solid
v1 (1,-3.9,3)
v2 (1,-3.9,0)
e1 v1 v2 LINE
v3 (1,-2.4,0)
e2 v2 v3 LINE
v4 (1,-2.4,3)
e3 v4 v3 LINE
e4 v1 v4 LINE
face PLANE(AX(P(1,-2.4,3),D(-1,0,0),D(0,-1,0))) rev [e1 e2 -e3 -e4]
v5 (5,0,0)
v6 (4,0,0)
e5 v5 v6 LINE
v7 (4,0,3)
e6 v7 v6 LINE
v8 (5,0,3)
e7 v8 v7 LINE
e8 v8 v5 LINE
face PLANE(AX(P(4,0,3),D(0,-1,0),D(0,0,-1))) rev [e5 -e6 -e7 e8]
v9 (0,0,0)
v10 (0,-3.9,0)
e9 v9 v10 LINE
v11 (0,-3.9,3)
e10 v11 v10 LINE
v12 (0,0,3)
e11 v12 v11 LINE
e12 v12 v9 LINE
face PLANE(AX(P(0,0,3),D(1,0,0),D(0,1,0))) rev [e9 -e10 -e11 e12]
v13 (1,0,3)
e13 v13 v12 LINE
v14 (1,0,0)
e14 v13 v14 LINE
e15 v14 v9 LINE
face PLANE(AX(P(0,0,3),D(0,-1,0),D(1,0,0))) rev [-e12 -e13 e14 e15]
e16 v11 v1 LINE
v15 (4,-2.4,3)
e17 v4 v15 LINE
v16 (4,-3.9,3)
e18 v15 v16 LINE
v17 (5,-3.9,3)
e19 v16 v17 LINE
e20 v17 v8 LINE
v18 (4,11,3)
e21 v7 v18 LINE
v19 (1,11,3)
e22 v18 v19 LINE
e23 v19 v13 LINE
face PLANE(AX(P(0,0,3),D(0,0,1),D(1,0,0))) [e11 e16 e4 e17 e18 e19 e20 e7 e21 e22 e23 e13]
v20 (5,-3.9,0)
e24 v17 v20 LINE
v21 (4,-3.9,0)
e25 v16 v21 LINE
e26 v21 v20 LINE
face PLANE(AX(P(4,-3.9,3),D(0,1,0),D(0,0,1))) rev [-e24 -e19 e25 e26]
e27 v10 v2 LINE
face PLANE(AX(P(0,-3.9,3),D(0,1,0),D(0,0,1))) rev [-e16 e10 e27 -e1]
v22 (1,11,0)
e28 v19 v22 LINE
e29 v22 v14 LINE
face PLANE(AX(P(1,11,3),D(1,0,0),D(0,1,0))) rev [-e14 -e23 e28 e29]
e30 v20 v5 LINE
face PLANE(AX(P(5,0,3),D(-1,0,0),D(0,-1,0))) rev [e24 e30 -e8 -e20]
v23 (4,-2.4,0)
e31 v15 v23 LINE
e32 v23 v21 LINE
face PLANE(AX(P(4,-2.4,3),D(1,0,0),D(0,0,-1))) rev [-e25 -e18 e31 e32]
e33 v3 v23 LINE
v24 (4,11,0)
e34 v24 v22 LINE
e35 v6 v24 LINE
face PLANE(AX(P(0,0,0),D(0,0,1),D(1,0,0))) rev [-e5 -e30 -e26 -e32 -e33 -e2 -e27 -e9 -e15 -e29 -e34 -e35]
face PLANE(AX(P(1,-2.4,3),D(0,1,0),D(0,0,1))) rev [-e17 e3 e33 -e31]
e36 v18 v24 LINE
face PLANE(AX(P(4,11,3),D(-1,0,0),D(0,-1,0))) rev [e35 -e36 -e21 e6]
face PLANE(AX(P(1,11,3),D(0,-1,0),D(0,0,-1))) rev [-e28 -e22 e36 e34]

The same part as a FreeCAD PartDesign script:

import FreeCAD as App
import Part
import Sketcher

V = App.Vector


def add_polygon(sketch, points):
    """Adds a closed chain of lines whose ends are joined by coincident constraints."""
    first, n = sketch.GeometryCount, len(points)
    for a, b in zip(points, points[1:] + points[:1]):
        sketch.addGeometry(Part.LineSegment(App.Vector(*a, 0), App.Vector(*b, 0)), False)
    for i in range(n):
        sketch.addConstraint(Sketcher.Constraint("Coincident", first + i, 2, first + (i + 1) % n, 1))

doc = App.newDocument("Part")
body = doc.addObject("PartDesign::Body", "Body")

sketch1 = body.newObject("Sketcher::SketchObject", "Sketch")
sketch1.AttachmentSupport = (doc.getObject("XY_Plane"), [""])
sketch1.MapMode = "FlatFace"
add_polygon(sketch1, [(4, -3.9), (5, -3.9), (5, 0), (4, 0), (4, 11), (1, 11), (1, 0), (0, 0), (0, -3.9), (1, -3.9), (1, -2.4), (4, -2.4)])
sketch1.addConstraint([
    Sketcher.Constraint("Horizontal", 0),
    Sketcher.Constraint("Vertical", 1),
    Sketcher.Constraint("Horizontal", 2),
    Sketcher.Constraint("Vertical", 3),
    Sketcher.Constraint("Horizontal", 4),
    Sketcher.Constraint("Vertical", 5),
    Sketcher.Constraint("Horizontal", 6),
    Sketcher.Constraint("Vertical", 7),
    Sketcher.Constraint("Horizontal", 8),
    Sketcher.Constraint("Vertical", 9),
    Sketcher.Constraint("Horizontal", 10),
    Sketcher.Constraint("Vertical", 11),
    Sketcher.Constraint("Coincident", 6, 2, -1, 1),
    Sketcher.Constraint("PointOnObject", 1, 2, -1),
    Sketcher.Constraint("Horizontal", 0, 2, 7, 2),
    Sketcher.Constraint("Vertical", 5, 2, 8, 2),
    Sketcher.Constraint("Vertical", 3, 2, 10, 2),
    Sketcher.Constraint("Equal", 2, 6),
    Sketcher.Constraint("DistanceX", 0, 1, 0, 2, 1.0),
    Sketcher.Constraint("DistanceX", 4, 2, 4, 1, 3.0),
    Sketcher.Constraint("DistanceY", 3, 1, 3, 2, 11.0),
    Sketcher.Constraint("DistanceY", 1, 1, 1, 2, 3.9),
    Sketcher.Constraint("DistanceY", 9, 1, 9, 2, 1.5),
])
pad1 = body.newObject("PartDesign::Pad", "Pad")
pad1.Profile = sketch1
pad1.Length = 3

doc.recompute()
